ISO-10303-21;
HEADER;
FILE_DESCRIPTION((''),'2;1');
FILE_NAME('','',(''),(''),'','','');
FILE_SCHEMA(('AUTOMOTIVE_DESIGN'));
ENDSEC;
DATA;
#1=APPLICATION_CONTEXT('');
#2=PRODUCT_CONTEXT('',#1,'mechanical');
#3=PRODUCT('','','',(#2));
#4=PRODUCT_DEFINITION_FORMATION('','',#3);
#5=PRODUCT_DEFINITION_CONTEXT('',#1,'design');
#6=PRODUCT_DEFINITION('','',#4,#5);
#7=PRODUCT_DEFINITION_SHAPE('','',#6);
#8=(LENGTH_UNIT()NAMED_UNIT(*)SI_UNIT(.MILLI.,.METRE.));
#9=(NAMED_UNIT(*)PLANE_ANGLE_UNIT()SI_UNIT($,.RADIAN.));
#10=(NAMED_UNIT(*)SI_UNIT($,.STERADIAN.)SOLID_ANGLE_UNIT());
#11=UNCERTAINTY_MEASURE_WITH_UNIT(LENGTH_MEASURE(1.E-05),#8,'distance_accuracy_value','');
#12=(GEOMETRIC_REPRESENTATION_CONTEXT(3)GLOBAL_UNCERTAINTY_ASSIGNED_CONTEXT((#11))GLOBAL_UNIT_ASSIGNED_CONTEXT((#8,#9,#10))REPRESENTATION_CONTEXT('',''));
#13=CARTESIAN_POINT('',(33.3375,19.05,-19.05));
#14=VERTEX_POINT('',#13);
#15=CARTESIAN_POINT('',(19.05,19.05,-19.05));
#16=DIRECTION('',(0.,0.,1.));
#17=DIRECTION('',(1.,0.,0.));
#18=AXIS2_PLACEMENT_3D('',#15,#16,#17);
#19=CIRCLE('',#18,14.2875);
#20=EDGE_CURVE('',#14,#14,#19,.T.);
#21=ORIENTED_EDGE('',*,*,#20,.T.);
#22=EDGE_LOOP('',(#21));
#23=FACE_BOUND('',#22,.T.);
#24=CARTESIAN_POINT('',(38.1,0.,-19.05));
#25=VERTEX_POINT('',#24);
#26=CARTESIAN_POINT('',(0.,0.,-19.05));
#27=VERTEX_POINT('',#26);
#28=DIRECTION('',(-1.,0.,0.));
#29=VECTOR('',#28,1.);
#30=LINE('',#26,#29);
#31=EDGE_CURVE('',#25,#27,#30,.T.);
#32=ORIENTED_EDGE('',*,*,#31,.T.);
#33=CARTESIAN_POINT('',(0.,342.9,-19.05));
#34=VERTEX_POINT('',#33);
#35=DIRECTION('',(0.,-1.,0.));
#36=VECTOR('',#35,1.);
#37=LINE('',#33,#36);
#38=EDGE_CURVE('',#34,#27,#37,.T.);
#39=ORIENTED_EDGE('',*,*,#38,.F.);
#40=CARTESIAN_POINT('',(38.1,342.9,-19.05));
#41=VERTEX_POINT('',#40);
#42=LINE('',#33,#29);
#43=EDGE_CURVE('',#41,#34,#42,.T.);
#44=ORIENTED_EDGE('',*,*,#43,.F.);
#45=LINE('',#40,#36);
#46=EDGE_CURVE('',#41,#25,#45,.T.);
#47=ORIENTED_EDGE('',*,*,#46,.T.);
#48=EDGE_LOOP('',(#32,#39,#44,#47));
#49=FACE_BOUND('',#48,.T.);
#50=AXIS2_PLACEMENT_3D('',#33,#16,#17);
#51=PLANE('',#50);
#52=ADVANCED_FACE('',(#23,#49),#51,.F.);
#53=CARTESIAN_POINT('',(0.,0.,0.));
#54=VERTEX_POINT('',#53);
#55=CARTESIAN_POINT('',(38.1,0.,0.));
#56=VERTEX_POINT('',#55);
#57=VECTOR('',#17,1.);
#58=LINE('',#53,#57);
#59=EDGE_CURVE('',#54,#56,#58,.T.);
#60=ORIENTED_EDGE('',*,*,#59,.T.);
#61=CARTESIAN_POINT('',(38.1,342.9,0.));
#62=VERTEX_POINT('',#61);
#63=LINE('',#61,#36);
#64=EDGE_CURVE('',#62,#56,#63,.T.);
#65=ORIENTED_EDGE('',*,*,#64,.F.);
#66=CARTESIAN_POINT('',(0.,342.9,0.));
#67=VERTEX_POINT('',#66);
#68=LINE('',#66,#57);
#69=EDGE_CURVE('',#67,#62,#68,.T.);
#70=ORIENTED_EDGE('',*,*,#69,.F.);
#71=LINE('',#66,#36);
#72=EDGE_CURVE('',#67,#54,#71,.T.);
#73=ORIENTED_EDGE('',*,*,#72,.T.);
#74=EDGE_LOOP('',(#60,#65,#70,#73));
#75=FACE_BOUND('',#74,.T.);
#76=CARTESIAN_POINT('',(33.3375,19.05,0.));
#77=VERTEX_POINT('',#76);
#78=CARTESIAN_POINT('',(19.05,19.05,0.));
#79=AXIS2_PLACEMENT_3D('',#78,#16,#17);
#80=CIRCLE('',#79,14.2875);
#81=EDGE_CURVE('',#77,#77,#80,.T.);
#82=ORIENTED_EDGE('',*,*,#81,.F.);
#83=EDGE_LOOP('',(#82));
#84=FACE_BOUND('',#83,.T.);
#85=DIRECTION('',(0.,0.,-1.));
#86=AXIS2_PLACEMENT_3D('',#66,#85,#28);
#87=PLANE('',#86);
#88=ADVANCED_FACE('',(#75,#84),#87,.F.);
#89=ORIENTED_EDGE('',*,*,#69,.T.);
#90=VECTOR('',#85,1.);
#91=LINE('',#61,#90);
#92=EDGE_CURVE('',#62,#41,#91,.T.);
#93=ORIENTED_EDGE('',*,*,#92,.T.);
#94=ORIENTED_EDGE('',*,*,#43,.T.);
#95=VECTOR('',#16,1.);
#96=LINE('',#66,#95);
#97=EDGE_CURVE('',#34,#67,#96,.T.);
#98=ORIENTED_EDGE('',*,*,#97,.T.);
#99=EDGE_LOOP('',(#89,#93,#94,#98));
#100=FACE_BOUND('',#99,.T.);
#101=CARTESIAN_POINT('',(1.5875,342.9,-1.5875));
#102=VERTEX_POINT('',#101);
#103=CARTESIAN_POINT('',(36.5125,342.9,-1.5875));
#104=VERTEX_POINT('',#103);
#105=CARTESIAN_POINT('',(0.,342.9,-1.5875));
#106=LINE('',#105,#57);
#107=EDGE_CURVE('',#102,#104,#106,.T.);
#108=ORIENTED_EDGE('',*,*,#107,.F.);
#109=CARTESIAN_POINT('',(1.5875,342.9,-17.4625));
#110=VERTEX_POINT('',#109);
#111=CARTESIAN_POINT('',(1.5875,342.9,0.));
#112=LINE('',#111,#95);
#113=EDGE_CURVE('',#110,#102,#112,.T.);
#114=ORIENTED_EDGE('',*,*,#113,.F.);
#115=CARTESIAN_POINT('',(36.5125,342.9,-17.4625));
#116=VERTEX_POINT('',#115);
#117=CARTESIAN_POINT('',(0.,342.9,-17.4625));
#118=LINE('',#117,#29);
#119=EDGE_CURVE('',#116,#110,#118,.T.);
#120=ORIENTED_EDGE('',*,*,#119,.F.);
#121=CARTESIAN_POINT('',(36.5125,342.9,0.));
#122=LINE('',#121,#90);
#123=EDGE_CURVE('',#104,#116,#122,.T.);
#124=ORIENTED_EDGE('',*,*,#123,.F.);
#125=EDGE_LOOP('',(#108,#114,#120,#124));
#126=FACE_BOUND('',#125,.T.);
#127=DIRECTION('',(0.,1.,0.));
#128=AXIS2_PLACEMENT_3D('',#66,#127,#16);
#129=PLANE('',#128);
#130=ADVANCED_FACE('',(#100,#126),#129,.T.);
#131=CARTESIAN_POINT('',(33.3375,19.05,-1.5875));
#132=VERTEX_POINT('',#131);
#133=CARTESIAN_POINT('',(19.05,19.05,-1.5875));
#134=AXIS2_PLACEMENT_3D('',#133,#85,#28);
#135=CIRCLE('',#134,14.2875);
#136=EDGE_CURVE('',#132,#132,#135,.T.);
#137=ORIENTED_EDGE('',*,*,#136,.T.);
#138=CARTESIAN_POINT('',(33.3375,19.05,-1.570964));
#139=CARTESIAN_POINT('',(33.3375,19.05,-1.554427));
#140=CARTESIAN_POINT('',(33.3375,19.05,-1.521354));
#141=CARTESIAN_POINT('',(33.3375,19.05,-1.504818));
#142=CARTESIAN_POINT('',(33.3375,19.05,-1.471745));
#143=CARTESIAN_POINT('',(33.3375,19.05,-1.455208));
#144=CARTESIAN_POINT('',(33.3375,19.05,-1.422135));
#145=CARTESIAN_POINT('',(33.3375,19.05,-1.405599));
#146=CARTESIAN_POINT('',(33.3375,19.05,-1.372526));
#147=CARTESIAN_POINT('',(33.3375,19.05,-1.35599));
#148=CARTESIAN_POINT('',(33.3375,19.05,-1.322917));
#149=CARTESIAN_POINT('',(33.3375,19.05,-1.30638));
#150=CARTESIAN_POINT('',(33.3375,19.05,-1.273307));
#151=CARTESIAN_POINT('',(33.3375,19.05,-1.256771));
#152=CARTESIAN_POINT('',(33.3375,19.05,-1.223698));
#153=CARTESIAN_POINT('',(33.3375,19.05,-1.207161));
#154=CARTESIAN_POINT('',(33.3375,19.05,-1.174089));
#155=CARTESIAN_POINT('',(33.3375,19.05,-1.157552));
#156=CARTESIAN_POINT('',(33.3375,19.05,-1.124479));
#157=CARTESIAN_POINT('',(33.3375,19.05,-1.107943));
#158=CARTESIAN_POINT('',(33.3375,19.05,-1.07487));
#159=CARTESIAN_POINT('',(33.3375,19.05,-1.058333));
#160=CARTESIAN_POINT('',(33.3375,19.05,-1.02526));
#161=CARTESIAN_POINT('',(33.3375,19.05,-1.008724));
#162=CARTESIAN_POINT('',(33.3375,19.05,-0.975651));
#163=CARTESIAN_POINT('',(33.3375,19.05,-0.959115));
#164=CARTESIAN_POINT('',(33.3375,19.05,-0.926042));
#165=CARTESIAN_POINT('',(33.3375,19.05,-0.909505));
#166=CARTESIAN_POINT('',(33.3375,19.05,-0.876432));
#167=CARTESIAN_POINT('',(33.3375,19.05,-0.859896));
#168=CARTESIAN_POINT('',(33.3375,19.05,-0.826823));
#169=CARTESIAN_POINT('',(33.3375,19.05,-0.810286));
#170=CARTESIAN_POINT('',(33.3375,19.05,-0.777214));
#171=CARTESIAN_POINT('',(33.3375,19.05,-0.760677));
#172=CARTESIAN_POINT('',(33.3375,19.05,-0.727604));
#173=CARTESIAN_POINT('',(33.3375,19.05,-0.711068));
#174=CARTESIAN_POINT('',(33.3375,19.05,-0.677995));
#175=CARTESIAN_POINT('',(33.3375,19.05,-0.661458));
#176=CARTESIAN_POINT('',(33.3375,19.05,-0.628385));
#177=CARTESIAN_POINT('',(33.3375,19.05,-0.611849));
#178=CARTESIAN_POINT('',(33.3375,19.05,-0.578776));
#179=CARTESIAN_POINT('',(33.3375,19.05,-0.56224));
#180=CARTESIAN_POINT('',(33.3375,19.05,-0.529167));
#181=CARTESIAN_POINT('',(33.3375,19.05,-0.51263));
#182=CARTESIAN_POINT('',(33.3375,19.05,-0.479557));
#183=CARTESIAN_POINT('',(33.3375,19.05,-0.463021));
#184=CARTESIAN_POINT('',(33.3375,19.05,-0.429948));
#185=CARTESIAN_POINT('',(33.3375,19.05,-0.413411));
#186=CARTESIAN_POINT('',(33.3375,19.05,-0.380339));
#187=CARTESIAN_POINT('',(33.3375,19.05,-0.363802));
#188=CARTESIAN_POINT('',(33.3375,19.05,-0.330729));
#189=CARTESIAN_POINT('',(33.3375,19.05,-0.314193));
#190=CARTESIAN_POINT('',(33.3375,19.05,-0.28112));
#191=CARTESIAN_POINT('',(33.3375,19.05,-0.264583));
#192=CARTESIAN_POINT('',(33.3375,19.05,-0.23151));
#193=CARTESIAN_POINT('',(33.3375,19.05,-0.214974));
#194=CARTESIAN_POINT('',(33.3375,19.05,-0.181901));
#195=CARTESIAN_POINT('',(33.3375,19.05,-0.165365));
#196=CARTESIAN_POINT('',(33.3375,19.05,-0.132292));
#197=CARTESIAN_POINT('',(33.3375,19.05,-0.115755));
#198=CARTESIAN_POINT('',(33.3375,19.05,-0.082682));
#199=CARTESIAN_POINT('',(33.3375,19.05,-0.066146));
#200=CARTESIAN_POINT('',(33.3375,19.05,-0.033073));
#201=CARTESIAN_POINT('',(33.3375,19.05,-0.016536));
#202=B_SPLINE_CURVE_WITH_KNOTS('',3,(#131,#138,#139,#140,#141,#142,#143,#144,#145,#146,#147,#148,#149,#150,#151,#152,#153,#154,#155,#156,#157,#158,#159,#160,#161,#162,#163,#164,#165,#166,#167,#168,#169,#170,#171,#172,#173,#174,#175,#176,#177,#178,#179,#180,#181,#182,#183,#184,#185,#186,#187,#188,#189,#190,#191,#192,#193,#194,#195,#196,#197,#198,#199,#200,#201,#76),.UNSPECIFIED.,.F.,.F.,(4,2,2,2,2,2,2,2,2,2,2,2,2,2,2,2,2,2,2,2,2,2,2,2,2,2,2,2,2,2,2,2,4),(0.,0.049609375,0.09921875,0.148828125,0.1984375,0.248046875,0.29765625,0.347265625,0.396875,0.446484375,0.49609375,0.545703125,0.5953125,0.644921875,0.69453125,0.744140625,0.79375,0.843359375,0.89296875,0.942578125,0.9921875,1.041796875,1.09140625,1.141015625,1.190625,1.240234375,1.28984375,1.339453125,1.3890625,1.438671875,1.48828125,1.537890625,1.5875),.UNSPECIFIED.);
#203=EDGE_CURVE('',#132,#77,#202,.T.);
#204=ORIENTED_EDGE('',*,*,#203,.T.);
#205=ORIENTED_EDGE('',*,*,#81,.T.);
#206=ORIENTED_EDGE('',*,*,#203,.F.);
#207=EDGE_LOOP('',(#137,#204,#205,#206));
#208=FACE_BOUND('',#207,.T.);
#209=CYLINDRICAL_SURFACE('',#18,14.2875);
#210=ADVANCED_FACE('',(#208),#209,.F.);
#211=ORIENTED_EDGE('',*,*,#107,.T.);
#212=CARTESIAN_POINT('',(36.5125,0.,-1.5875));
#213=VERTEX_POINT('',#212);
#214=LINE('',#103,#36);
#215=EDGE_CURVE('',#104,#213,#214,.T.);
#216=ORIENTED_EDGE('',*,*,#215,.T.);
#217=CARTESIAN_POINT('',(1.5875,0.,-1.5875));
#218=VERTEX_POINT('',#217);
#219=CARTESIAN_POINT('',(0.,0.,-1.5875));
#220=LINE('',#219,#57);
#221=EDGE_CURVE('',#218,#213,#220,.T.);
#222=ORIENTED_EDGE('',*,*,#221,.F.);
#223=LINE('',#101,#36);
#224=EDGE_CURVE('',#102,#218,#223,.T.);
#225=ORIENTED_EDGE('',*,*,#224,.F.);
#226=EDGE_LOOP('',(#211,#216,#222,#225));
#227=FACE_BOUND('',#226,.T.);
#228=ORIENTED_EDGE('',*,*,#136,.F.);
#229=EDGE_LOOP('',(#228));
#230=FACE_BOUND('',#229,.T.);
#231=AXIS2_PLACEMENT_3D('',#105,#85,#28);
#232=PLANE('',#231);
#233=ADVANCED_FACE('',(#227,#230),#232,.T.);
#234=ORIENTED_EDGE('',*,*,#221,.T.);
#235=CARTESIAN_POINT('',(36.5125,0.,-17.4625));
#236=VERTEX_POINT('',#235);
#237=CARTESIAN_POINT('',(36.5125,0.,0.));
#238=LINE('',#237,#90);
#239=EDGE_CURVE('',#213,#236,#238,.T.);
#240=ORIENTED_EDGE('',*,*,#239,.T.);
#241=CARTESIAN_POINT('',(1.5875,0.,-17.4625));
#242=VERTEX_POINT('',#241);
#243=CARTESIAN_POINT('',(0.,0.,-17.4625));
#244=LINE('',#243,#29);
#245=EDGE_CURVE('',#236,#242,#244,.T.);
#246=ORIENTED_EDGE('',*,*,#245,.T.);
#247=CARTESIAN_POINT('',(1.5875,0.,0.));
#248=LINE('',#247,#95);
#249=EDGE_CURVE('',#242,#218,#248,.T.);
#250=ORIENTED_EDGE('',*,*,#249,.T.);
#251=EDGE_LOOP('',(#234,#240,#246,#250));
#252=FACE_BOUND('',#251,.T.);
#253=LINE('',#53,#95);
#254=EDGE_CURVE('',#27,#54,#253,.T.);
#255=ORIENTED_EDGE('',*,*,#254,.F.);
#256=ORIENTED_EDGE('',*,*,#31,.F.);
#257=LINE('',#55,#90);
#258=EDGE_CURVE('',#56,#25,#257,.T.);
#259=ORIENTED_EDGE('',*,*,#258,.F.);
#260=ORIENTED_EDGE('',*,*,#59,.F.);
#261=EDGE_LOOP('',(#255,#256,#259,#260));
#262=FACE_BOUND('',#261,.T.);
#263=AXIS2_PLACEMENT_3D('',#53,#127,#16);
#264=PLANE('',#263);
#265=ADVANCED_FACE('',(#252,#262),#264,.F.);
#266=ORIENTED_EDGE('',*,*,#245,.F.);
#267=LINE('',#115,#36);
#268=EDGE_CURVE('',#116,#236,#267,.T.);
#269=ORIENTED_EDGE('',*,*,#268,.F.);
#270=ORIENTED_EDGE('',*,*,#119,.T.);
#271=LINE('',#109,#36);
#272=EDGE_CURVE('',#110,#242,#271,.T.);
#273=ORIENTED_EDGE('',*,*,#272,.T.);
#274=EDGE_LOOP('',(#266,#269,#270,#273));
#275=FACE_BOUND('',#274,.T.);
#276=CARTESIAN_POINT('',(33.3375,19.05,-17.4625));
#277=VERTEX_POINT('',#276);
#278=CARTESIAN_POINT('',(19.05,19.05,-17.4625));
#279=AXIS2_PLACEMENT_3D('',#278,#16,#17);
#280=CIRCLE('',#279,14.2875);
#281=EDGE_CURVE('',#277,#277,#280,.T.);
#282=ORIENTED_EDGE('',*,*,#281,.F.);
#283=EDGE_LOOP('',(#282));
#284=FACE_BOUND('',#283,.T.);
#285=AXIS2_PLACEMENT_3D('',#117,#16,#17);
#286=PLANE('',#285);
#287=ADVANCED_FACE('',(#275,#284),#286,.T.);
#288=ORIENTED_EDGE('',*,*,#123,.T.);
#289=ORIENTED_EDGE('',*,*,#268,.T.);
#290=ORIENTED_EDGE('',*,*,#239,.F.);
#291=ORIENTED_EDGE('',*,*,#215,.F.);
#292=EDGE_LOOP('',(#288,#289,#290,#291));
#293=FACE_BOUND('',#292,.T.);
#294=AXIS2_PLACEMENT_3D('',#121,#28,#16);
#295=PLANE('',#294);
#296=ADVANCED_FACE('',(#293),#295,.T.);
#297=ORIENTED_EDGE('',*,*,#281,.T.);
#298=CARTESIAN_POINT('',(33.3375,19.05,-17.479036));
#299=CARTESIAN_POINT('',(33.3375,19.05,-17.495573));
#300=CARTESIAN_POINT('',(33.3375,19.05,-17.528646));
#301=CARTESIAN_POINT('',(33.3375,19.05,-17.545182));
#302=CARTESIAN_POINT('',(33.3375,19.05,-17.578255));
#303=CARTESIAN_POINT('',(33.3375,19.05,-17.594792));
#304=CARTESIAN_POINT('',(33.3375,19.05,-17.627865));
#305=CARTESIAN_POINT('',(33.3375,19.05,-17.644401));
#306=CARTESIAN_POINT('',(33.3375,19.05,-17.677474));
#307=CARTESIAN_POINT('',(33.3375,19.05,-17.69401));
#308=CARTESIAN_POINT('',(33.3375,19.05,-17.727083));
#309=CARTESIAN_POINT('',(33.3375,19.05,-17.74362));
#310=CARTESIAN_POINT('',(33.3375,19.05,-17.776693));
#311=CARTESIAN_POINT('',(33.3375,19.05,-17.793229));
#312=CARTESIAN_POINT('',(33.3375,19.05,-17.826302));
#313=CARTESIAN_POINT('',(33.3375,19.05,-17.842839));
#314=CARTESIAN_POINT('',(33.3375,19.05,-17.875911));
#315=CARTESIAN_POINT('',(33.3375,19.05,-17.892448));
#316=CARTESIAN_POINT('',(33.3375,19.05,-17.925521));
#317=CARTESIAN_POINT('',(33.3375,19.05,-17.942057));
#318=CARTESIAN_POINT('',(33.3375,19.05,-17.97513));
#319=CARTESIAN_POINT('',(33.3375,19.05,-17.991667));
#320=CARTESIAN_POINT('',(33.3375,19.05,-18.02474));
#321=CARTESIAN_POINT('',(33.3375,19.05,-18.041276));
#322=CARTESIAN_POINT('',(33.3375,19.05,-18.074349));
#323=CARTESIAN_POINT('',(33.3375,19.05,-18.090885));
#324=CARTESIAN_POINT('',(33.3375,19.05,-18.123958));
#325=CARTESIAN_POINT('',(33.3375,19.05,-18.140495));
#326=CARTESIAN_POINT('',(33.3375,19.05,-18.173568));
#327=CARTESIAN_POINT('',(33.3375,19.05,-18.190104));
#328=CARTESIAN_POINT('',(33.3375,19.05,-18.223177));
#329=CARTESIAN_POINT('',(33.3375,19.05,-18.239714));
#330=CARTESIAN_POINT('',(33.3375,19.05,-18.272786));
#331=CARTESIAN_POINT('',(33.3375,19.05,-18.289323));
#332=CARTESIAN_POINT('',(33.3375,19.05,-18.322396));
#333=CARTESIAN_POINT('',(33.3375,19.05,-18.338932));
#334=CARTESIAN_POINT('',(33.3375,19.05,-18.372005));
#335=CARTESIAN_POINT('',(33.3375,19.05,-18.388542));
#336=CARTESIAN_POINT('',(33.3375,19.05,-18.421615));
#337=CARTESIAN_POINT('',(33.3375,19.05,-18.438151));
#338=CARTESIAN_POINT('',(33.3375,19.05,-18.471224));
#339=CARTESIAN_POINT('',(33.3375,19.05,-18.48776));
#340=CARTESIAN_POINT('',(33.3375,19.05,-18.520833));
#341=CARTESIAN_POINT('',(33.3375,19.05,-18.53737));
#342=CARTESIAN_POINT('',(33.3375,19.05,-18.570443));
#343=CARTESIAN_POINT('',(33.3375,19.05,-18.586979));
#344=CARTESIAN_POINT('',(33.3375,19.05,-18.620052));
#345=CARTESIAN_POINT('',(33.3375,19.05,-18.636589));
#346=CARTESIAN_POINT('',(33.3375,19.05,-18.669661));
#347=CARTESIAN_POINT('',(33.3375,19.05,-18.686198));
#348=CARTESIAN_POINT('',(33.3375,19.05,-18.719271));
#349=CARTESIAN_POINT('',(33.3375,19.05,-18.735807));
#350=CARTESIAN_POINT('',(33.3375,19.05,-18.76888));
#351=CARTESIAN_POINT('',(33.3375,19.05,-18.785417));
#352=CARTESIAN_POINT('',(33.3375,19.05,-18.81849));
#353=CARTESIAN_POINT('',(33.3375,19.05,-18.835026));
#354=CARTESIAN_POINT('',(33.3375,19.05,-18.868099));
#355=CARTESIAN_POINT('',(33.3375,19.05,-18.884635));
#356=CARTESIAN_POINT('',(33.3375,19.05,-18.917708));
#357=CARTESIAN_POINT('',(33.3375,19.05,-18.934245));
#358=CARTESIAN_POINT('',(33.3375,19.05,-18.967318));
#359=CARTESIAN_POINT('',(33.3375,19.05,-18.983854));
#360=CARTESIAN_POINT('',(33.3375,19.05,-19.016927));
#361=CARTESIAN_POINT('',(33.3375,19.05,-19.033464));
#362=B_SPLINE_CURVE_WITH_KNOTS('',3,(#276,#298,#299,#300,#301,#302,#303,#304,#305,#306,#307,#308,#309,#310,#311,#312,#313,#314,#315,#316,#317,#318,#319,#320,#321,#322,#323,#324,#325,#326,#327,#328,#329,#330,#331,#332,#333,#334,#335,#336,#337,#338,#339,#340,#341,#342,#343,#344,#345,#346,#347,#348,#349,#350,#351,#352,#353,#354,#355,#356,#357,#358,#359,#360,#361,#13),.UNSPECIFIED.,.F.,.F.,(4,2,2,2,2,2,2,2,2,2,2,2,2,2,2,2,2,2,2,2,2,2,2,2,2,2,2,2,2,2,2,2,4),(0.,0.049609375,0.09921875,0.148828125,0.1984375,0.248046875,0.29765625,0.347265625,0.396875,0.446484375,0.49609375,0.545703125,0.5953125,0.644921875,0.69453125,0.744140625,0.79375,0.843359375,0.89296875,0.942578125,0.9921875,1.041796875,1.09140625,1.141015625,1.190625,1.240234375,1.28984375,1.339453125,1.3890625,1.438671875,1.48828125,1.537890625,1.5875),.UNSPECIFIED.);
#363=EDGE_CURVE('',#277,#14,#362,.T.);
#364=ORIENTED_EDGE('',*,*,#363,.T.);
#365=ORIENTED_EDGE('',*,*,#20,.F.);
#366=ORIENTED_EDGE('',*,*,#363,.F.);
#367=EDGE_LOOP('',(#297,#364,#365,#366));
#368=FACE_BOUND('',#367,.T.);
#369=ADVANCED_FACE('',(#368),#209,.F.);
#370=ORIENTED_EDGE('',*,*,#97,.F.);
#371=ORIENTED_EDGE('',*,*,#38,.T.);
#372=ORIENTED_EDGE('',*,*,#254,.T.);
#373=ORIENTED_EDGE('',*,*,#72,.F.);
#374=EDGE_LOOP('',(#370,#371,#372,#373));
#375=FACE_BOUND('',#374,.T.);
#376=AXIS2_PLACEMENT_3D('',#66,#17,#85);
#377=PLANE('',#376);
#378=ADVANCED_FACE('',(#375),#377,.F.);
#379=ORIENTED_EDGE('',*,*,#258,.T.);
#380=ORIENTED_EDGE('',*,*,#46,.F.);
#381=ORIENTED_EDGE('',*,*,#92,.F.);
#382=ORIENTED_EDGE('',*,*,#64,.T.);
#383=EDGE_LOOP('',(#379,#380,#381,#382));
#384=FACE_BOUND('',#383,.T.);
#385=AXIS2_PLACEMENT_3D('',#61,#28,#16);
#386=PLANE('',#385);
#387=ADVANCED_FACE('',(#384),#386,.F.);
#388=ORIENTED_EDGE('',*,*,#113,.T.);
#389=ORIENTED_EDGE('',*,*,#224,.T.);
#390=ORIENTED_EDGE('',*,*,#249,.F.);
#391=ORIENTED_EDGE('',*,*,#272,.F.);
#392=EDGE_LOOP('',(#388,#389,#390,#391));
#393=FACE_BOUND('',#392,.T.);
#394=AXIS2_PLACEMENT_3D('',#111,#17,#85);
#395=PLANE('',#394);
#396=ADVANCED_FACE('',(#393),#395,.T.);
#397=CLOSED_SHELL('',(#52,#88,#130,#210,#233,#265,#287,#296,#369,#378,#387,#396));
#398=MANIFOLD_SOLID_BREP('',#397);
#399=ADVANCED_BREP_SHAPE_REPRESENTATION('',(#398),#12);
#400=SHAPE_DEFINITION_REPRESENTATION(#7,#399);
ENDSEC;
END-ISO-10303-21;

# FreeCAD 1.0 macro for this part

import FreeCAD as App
import Part
import Sketcher
from FreeCAD import Vector
Q = App.Units.Quantity


def add_polygon(sketch, points):
    """Adds a closed chain of lines whose ends are joined by coincident constraints."""
    first, n = sketch.GeometryCount, len(points)
    for a, b in zip(points, points[1:] + points[:1]):
        sketch.addGeometry(Part.LineSegment(App.Vector(*a, 0), App.Vector(*b, 0)), False)
    for i in range(n):
        sketch.addConstraint(Sketcher.Constraint("Coincident", first + i, 2, first + (i + 1) % n, 1))

doc = App.newDocument("Part")
params = doc.addObject("Spreadsheet::Sheet", "Params")
for row, (alias, value) in enumerate([
    ("sketch1_width", "1.5 in"),
    ("sketch1_height", "0.75 in"),
    ("sketch1_width2", "1.375 in"),
    ("sketch1_height2", "0.625 in"),
    ("pad1_length", "13.5 in"),
    ("sketch2_diameter", "1.125 in"),
], start=1):
    params.set(f"A{row}", alias)
    params.set(f"B{row}", "=" + value)
    params.setAlias(f"B{row}", alias)

body = doc.addObject("PartDesign::Body", "Body")

# Sketch on XZ plane
sketch1 = body.newObject("Sketcher::SketchObject", "Sketch")
sketch1.AttachmentSupport = (doc.getObject("XZ_Plane"), [""])
sketch1.MapMode = "FlatFace"
add_polygon(sketch1, [(0, -19), (0, 0), (38, 0), (38, -19)])  # lines 0-3
add_polygon(sketch1, [(37, -2), (2, -2), (2, -17), (37, -17)])  # lines 4-7
sketch1.addConstraint([
    Sketcher.Constraint("Vertical", 0),
    Sketcher.Constraint("Horizontal", 1),
    Sketcher.Constraint("Vertical", 2),
    Sketcher.Constraint("Horizontal", 3),
    Sketcher.Constraint("Horizontal", 4),
    Sketcher.Constraint("Vertical", 5),
    Sketcher.Constraint("Horizontal", 6),
    Sketcher.Constraint("Vertical", 7),
    Sketcher.Constraint("Coincident", 0, 2, -1, 1),
    Sketcher.Constraint("DistanceX", 1, 1, 1, 2, Q("1.5 in")),
    Sketcher.Constraint("DistanceY", 0, 1, 0, 2, Q("0.75 in")),
    Sketcher.Constraint("DistanceX", 4, 2, 4, 1, Q("1.375 in")),
    Sketcher.Constraint("DistanceY", 5, 2, 5, 1, Q("0.625 in")),
    Sketcher.Constraint("DistanceX", -1, 1, 4, 2, Q("0.0625 in")),
    Sketcher.Constraint("DistanceY", 4, 2, -1, 1, Q("0.0625 in")),
])
sketch1.setExpression("Constraints[17]", "Params.sketch1_width")
sketch1.setExpression("Constraints[18]", "Params.sketch1_height")
sketch1.setExpression("Constraints[19]", "Params.sketch1_width2")
sketch1.setExpression("Constraints[20]", "Params.sketch1_height2")
pad1 = body.newObject("PartDesign::Pad", "Pad")
pad1.Profile = sketch1
pad1.setExpression("Length", "Params.pad1_length")
pad1.Reversed = True

# Sketch on XY plane
sketch2 = body.newObject("Sketcher::SketchObject", "Sketch001")
sketch2.AttachmentSupport = (doc.getObject("XY_Plane"), [""])
sketch2.MapMode = "FlatFace"
sketch2.addGeometry(Part.Circle(Vector(19, 19, 0), Vector(0, 0, 1), 14), False)
sketch2.addConstraint([
    Sketcher.Constraint("Diameter", 0, Q("1.125 in")),
    Sketcher.Constraint("DistanceX", -1, 1, 0, 3, Q("0.75 in")),
    Sketcher.Constraint("DistanceY", -1, 1, 0, 3, Q("0.75 in")),
])
sketch2.setExpression("Constraints[0]", "Params.sketch2_diameter")
pocket1 = body.newObject("PartDesign::Pocket", "Pocket")
pocket1.Profile = sketch2
pocket1.Type = "ThroughAll"

doc.recompute()
